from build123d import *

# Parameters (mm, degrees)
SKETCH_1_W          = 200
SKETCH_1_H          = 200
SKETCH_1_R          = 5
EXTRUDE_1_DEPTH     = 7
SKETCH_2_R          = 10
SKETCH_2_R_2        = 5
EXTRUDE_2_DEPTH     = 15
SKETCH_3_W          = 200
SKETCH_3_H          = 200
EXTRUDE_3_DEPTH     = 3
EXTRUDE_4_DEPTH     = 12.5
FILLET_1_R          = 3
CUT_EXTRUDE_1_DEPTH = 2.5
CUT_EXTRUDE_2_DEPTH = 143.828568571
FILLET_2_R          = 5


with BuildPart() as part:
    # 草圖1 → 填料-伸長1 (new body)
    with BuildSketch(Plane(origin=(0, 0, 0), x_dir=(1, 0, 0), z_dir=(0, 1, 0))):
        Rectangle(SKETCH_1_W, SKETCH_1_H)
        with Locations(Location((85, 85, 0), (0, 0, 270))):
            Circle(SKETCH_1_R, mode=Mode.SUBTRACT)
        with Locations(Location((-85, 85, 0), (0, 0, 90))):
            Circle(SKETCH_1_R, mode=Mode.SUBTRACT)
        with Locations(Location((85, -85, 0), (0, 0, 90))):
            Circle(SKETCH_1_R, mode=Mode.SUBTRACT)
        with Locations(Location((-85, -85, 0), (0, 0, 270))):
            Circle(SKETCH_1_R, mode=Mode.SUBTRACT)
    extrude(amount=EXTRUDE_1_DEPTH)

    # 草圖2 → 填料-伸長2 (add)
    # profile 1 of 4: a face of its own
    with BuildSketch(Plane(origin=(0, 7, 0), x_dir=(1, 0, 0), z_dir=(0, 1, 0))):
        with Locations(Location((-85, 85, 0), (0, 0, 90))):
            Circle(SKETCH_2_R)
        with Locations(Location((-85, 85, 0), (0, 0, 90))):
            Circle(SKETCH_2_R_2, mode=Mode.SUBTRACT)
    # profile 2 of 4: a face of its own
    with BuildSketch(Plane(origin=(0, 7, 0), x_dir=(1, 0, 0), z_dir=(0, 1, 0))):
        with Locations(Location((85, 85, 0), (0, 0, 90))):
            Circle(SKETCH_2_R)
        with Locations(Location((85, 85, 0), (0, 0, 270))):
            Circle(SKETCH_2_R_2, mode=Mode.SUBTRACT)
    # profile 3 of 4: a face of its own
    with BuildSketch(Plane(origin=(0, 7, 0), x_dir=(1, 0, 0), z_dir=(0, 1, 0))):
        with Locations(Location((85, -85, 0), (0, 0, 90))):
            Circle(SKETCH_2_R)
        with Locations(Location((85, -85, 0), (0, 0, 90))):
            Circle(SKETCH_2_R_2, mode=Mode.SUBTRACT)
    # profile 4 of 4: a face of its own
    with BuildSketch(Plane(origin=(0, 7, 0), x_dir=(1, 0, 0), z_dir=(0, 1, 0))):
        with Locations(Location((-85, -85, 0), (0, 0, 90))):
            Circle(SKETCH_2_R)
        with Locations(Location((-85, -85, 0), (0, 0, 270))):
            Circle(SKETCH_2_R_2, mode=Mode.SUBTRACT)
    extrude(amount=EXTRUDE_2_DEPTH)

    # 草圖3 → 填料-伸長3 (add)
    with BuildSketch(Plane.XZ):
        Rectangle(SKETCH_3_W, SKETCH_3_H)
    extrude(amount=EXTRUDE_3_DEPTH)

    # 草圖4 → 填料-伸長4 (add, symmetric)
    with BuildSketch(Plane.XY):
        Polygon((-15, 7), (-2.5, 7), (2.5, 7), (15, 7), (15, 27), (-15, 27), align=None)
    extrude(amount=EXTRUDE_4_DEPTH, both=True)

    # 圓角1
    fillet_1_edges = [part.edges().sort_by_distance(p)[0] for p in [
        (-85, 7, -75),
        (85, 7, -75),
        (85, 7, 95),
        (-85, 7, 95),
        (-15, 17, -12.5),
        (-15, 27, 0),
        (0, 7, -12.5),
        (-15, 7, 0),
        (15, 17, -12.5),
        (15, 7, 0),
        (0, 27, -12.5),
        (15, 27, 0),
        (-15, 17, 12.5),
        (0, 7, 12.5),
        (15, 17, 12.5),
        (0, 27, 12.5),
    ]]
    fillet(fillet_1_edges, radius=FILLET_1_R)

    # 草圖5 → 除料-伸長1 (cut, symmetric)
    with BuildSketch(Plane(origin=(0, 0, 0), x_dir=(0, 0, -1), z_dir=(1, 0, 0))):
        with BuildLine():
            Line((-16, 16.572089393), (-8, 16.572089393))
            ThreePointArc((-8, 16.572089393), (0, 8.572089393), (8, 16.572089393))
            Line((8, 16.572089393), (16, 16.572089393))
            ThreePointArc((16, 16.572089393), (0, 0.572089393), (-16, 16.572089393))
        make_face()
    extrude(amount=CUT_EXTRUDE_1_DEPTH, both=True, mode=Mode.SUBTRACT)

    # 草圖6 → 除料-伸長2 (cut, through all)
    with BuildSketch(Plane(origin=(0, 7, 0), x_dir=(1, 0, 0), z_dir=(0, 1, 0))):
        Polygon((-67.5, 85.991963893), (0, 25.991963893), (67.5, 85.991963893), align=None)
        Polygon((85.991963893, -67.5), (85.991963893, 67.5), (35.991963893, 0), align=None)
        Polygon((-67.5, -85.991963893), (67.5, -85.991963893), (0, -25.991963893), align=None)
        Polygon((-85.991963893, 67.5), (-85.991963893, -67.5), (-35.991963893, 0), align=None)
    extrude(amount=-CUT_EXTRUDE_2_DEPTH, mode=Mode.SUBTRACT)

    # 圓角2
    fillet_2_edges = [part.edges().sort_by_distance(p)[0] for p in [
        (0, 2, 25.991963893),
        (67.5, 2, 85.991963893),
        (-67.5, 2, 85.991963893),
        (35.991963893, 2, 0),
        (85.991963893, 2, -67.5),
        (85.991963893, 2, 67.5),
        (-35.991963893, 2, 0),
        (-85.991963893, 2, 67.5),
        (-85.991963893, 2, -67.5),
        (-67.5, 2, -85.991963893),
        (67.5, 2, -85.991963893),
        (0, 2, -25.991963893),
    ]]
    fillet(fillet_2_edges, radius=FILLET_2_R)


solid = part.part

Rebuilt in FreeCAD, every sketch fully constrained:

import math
import FreeCAD as App
import Part
import Sketcher
Q = App.Units.Quantity


def edges_at(feature, points):
    """Names of the edges that pass closest to the given points."""
    edges = feature.Shape.Edges
    near = lambda p: min(range(len(edges)), key=lambda i: edges[i].distToShape(Part.Vertex(*p))[0])
    return sorted({f"Edge{near(p) + 1}" for p in points})

doc = App.newDocument("Part")
body = doc.addObject("PartDesign::Body", "Body")

sketch1 = body.newObject("Sketcher::SketchObject", "Sketch")
sketch1.AttachmentSupport = (doc.getObject("XZ_Plane"), [""])
sketch1.MapMode = "FlatFace"
sketch1.addGeometry([
    Part.LineSegment(App.Vector(-100, -100, 0), App.Vector(-100, 100, 0)),
    Part.LineSegment(App.Vector(-100, 100, 0), App.Vector(100, 100, 0)),
    Part.LineSegment(App.Vector(100, 100, 0), App.Vector(100, -100, 0)),
    Part.LineSegment(App.Vector(100, -100, 0), App.Vector(-100, -100, 0)),
    Part.Circle(App.Vector(-85, 85, 0), App.Vector(0, 0, 1), 5),
    Part.Circle(App.Vector(85, 85, 0), App.Vector(0, 0, 1), 5),
    Part.Circle(App.Vector(-85, -85, 0), App.Vector(0, 0, 1), 5),
    Part.Circle(App.Vector(85, -85, 0), App.Vector(0, 0, 1), 5),
], False)
sketch1.addConstraint([
    Sketcher.Constraint("Coincident", 0, 2, 1, 1),
    Sketcher.Constraint("Coincident", 1, 2, 2, 1),
    Sketcher.Constraint("Coincident", 2, 2, 3, 1),
    Sketcher.Constraint("Coincident", 3, 2, 0, 1),
    Sketcher.Constraint("Vertical", 0),
    Sketcher.Constraint("Horizontal", 1),
    Sketcher.Constraint("Vertical", 2),
    Sketcher.Constraint("Horizontal", 3),
    Sketcher.Constraint("Equal", 4, 5),
    Sketcher.Constraint("Equal", 5, 6),
    Sketcher.Constraint("Equal", 6, 7),
    Sketcher.Constraint("Symmetric", 5, 3, 6, 3, -1, 1),
    Sketcher.Constraint("Symmetric", 4, 3, 7, 3, -1, 1),
    Sketcher.Constraint("Symmetric", 0, 2, 2, 2, -1, 1),
    Sketcher.Constraint("Symmetric", 4, 3, 5, 3, -2),
    Sketcher.Constraint("Equal", 3, 0),
    Sketcher.Constraint("Diameter", 4, Q("10 mm")),
    Sketcher.Constraint("DistanceX", 1, 1, 1, 2, Q("200 mm")),
    Sketcher.Constraint("DistanceX", 4, 3, -1, 1, Q("85 mm")),
    Sketcher.Constraint("DistanceY", -1, 1, 4, 3, Q("85 mm")),
])
pad1 = body.newObject("PartDesign::Pad", "Pad")
pad1.Profile = sketch1
pad1.Length = 7
pad1.Reversed = True

sketch2 = body.newObject("Sketcher::SketchObject", "Sketch001")
sketch2.AttachmentSupport = (doc.getObject("XZ_Plane"), [""])
sketch2.MapMode = "FlatFace"
sketch2.AttachmentOffset = App.Placement(App.Vector(0, 0, -7), App.Rotation())
sketch2.addGeometry([
    Part.Circle(App.Vector(-85, -85, 0), App.Vector(0, 0, 1), 10),
    Part.Circle(App.Vector(-85, -85, 0), App.Vector(0, 0, 1), 5),
    Part.Circle(App.Vector(85, -85, 0), App.Vector(0, 0, 1), 10),
    Part.Circle(App.Vector(85, -85, 0), App.Vector(0, 0, 1), 5),
    Part.Circle(App.Vector(85, 85, 0), App.Vector(0, 0, 1), 10),
    Part.Circle(App.Vector(85, 85, 0), App.Vector(0, 0, 1), 5),
    Part.Circle(App.Vector(-85, 85, 0), App.Vector(0, 0, 1), 10),
    Part.Circle(App.Vector(-85, 85, 0), App.Vector(0, 0, 1), 5),
], False)
sketch2.addConstraint([
    Sketcher.Constraint("Coincident", 1, 3, 0, 3),
    Sketcher.Constraint("Coincident", 3, 3, 2, 3),
    Sketcher.Constraint("Coincident", 5, 3, 4, 3),
    Sketcher.Constraint("Coincident", 7, 3, 6, 3),
    Sketcher.Constraint("Equal", 0, 2),
    Sketcher.Constraint("Equal", 1, 3),
    Sketcher.Constraint("Equal", 2, 4),
    Sketcher.Constraint("Equal", 3, 5),
    Sketcher.Constraint("Equal", 4, 6),
    Sketcher.Constraint("Equal", 5, 7),
    Sketcher.Constraint("Symmetric", 0, 3, 4, 3, -1, 1),
    Sketcher.Constraint("Symmetric", 2, 3, 6, 3, -1, 1),
    Sketcher.Constraint("Symmetric", 0, 3, 2, 3, -2),
    Sketcher.Constraint("Diameter", 0, Q("20 mm")),
    Sketcher.Constraint("Diameter", 1, Q("10 mm")),
    Sketcher.Constraint("DistanceX", 0, 3, -1, 1, Q("85 mm")),
    Sketcher.Constraint("DistanceY", 0, 3, -1, 1, Q("85 mm")),
])
pad2 = body.newObject("PartDesign::Pad", "Pad001")
pad2.Profile = sketch2
pad2.Length = 15
pad2.Reversed = True

sketch3 = body.newObject("Sketcher::SketchObject", "Sketch002")
sketch3.AttachmentSupport = (doc.getObject("XZ_Plane"), [""])
sketch3.MapMode = "FlatFace"
sketch3.addGeometry([
    Part.LineSegment(App.Vector(-100, 100, 0), App.Vector(-100, -100, 0)),
    Part.LineSegment(App.Vector(-100, -100, 0), App.Vector(100, -100, 0)),
    Part.LineSegment(App.Vector(100, -100, 0), App.Vector(100, 100, 0)),
    Part.LineSegment(App.Vector(100, 100, 0), App.Vector(-100, 100, 0)),
], False)
sketch3.addConstraint([
    Sketcher.Constraint("Coincident", 0, 2, 1, 1),
    Sketcher.Constraint("Coincident", 1, 2, 2, 1),
    Sketcher.Constraint("Coincident", 2, 2, 3, 1),
    Sketcher.Constraint("Coincident", 3, 2, 0, 1),
    Sketcher.Constraint("Vertical", 0),
    Sketcher.Constraint("Horizontal", 1),
    Sketcher.Constraint("Vertical", 2),
    Sketcher.Constraint("Horizontal", 3),
    Sketcher.Constraint("Symmetric", 0, 2, 2, 2, -1, 1),
    Sketcher.Constraint("Equal", 3, 0),
    Sketcher.Constraint("DistanceX", 1, 1, 1, 2, Q("200 mm")),
])
pad3 = body.newObject("PartDesign::Pad", "Pad002")
pad3.Profile = sketch3
pad3.Length = 3

sketch4 = body.newObject("Sketcher::SketchObject", "Sketch003")
sketch4.AttachmentSupport = (doc.getObject("XY_Plane"), [""])
sketch4.MapMode = "FlatFace"
sketch4.addGeometry([
    Part.LineSegment(App.Vector(-15, 7, 0), App.Vector(15, 7, 0)),
    Part.LineSegment(App.Vector(15, 7, 0), App.Vector(15, 27, 0)),
    Part.LineSegment(App.Vector(15, 27, 0), App.Vector(-15, 27, 0)),
    Part.LineSegment(App.Vector(-15, 27, 0), App.Vector(-15, 7, 0)),
], False)
sketch4.addConstraint([
    Sketcher.Constraint("Coincident", 0, 2, 1, 1),
    Sketcher.Constraint("Coincident", 1, 2, 2, 1),
    Sketcher.Constraint("Coincident", 2, 2, 3, 1),
    Sketcher.Constraint("Coincident", 3, 2, 0, 1),
    Sketcher.Constraint("Horizontal", 0),
    Sketcher.Constraint("Vertical", 1),
    Sketcher.Constraint("Horizontal", 2),
    Sketcher.Constraint("Vertical", 3),
    Sketcher.Constraint("DistanceX", 0, 1, 0, 2, Q("30 mm")),
    Sketcher.Constraint("DistanceY", 1, 1, 1, 2, Q("20 mm")),
    Sketcher.Constraint("DistanceX", -1, 1, 0, 2, Q("15 mm")),
    Sketcher.Constraint("DistanceY", -1, 1, 0, 2, Q("7 mm")),
])
pad4 = body.newObject("PartDesign::Pad", "Pad003")
pad4.Profile = sketch4
pad4.Length = 25
pad4.Midplane = True
doc.recompute()

fillet = body.newObject("PartDesign::Fillet", "Fillet")
fillet.Base = (pad4, edges_at(pad4, [
    (-85, 7, -75),
    (85, 7, -75),
    (85, 7, 95),
    (-85, 7, 95),
    (-15, 17, -12.5),
    (-15, 27, 0),
    (0, 7, -12.5),
    (-15, 7, 0),
    (15, 17, -12.5),
    (15, 7, 0),
    (0, 27, -12.5),
    (15, 27, 0),
    (-15, 17, 12.5),
    (0, 7, 12.5),
    (15, 17, 12.5),
    (0, 27, 12.5),
]))
fillet.Radius = 3

sketch5 = body.newObject("Sketcher::SketchObject", "Sketch004")
sketch5.AttachmentSupport = (doc.getObject("YZ_Plane"), [""])
sketch5.MapMode = "FlatFace"
sketch5.addGeometry([
    Part.LineSegment(App.Vector(17, 8, 0), App.Vector(17, 16, 0)),
    Part.ArcOfCircle(Part.Circle(App.Vector(17, 0, 0), App.Vector(0, 0, 1), 16), math.radians(90), math.radians(270)),
    Part.LineSegment(App.Vector(17, -16, 0), App.Vector(17, -8, 0)),
    Part.ArcOfCircle(Part.Circle(App.Vector(17, 0, 0), App.Vector(0, 0, 1), 8), math.radians(90), math.radians(270)),
], False)
sketch5.addConstraint([
    Sketcher.Constraint("Coincident", 0, 2, 1, 1),
    Sketcher.Constraint("Coincident", 1, 2, 2, 1),
    Sketcher.Constraint("Coincident", 2, 2, 3, 2),
    Sketcher.Constraint("Coincident", 3, 1, 0, 1),
    Sketcher.Constraint("Vertical", 0),
    Sketcher.Constraint("Vertical", 2),
    Sketcher.Constraint("Coincident", 3, 3, 1, 3),
    Sketcher.Constraint("Symmetric", 0, 2, 1, 2, -1),
    Sketcher.Constraint("Vertical", 3, 3, 0, 2),
    Sketcher.Constraint("Radius", 1, Q("16 mm")),
    Sketcher.Constraint("Radius", 3, Q("8 mm")),
    Sketcher.Constraint("DistanceX", -1, 1, 1, 3, Q("16.572089 mm")),
])
pocket1 = body.newObject("PartDesign::Pocket", "Pocket")
pocket1.Profile = sketch5
pocket1.Length = 5
pocket1.Midplane = True

sketch6 = body.newObject("Sketcher::SketchObject", "Sketch005")
sketch6.AttachmentSupport = (doc.getObject("XZ_Plane"), [""])
sketch6.MapMode = "FlatFace"
sketch6.AttachmentOffset = App.Placement(App.Vector(0, 0, -7), App.Rotation())
sketch6.addGeometry([
    Part.LineSegment(App.Vector(-68, -86, 0), App.Vector(0, -26, 0)),
    Part.LineSegment(App.Vector(0, -26, 0), App.Vector(68, -86, 0)),
    Part.LineSegment(App.Vector(68, -86, 0), App.Vector(-68, -86, 0)),
    Part.LineSegment(App.Vector(86, 68, 0), App.Vector(86, -68, 0)),
    Part.LineSegment(App.Vector(86, -68, 0), App.Vector(36, 0, 0)),
    Part.LineSegment(App.Vector(36, 0, 0), App.Vector(86, 68, 0)),
    Part.LineSegment(App.Vector(-68, 86, 0), App.Vector(68, 86, 0)),
    Part.LineSegment(App.Vector(68, 86, 0), App.Vector(0, 26, 0)),
    Part.LineSegment(App.Vector(0, 26, 0), App.Vector(-68, 86, 0)),
    Part.LineSegment(App.Vector(-86, -68, 0), App.Vector(-86, 68, 0)),
    Part.LineSegment(App.Vector(-86, 68, 0), App.Vector(-36, 0, 0)),
    Part.LineSegment(App.Vector(-36, 0, 0), App.Vector(-86, -68, 0)),
], False)
sketch6.addConstraint([
    Sketcher.Constraint("Coincident", 0, 2, 1, 1),
    Sketcher.Constraint("Coincident", 1, 2, 2, 1),
    Sketcher.Constraint("Coincident", 2, 2, 0, 1),
    Sketcher.Constraint("Coincident", 3, 2, 4, 1),
    Sketcher.Constraint("Coincident", 4, 2, 5, 1),
    Sketcher.Constraint("Coincident", 5, 2, 3, 1),
    Sketcher.Constraint("Coincident", 6, 2, 7, 1),
    Sketcher.Constraint("Coincident", 7, 2, 8, 1),
    Sketcher.Constraint("Coincident", 8, 2, 6, 1),
    Sketcher.Constraint("Coincident", 9, 2, 10, 1),
    Sketcher.Constraint("Coincident", 10, 2, 11, 1),
    Sketcher.Constraint("Coincident", 11, 2, 9, 1),
    Sketcher.Constraint("Horizontal", 2),
    Sketcher.Constraint("Vertical", 3),
    Sketcher.Constraint("Horizontal", 6),
    Sketcher.Constraint("Vertical", 9),
    Sketcher.Constraint("Symmetric", 2, 2, 6, 2, -1, 1),
    Sketcher.Constraint("Symmetric", 0, 2, 7, 2, -1, 1),
    Sketcher.Constraint("Symmetric", 3, 2, 9, 2, -1, 1),
    Sketcher.Constraint("Symmetric", 4, 2, 10, 2, -1, 1),
    Sketcher.Constraint("PointOnObject", 0, 2, -2),
    Sketcher.Constraint("PointOnObject", 4, 2, -1),
    Sketcher.Constraint("Parallel", 1, 8),
    Sketcher.Constraint("Parallel", 5, 11),
    Sketcher.Constraint("Horizontal", 5, 2, 9, 2),
    Sketcher.Constraint("Vertical", 1, 2, 6, 2),
    Sketcher.Constraint("Equal", 6, 3),
    Sketcher.Constraint("DistanceX", 2, 2, 2, 1, Q("135 mm")),
    Sketcher.Constraint("DistanceY", 1, 2, 0, 2, Q("60 mm")),
    Sketcher.Constraint("DistanceX", 4, 2, 3, 2, Q("50 mm")),
    Sketcher.Constraint("DistanceY", 0, 2, -1, 1, Q("25.991964 mm")),
    Sketcher.Constraint("DistanceX", -1, 1, 3, 2, Q("85.991964 mm")),
])
pocket2 = body.newObject("PartDesign::Pocket", "Pocket001")
pocket2.Profile = sketch6
pocket2.Type = "ThroughAll"
pocket2.Reversed = True
doc.recompute()

fillet2 = body.newObject("PartDesign::Fillet", "Fillet001")
fillet2.Base = (pocket2, edges_at(pocket2, [
    (0, 2, 25.992),
    (67.5, 2, 85.992),
    (-67.5, 2, 85.992),
    (35.992, 2, 0),
    (85.992, 2, -67.5),
    (85.992, 2, 67.5),
    (-35.992, 2, 0),
    (-85.992, 2, 67.5),
    (-85.992, 2, -67.5),
    (-67.5, 2, -85.992),
    (67.5, 2, -85.992),
    (0, 2, -25.992),
]))
fillet2.Radius = 5

doc.recompute()
